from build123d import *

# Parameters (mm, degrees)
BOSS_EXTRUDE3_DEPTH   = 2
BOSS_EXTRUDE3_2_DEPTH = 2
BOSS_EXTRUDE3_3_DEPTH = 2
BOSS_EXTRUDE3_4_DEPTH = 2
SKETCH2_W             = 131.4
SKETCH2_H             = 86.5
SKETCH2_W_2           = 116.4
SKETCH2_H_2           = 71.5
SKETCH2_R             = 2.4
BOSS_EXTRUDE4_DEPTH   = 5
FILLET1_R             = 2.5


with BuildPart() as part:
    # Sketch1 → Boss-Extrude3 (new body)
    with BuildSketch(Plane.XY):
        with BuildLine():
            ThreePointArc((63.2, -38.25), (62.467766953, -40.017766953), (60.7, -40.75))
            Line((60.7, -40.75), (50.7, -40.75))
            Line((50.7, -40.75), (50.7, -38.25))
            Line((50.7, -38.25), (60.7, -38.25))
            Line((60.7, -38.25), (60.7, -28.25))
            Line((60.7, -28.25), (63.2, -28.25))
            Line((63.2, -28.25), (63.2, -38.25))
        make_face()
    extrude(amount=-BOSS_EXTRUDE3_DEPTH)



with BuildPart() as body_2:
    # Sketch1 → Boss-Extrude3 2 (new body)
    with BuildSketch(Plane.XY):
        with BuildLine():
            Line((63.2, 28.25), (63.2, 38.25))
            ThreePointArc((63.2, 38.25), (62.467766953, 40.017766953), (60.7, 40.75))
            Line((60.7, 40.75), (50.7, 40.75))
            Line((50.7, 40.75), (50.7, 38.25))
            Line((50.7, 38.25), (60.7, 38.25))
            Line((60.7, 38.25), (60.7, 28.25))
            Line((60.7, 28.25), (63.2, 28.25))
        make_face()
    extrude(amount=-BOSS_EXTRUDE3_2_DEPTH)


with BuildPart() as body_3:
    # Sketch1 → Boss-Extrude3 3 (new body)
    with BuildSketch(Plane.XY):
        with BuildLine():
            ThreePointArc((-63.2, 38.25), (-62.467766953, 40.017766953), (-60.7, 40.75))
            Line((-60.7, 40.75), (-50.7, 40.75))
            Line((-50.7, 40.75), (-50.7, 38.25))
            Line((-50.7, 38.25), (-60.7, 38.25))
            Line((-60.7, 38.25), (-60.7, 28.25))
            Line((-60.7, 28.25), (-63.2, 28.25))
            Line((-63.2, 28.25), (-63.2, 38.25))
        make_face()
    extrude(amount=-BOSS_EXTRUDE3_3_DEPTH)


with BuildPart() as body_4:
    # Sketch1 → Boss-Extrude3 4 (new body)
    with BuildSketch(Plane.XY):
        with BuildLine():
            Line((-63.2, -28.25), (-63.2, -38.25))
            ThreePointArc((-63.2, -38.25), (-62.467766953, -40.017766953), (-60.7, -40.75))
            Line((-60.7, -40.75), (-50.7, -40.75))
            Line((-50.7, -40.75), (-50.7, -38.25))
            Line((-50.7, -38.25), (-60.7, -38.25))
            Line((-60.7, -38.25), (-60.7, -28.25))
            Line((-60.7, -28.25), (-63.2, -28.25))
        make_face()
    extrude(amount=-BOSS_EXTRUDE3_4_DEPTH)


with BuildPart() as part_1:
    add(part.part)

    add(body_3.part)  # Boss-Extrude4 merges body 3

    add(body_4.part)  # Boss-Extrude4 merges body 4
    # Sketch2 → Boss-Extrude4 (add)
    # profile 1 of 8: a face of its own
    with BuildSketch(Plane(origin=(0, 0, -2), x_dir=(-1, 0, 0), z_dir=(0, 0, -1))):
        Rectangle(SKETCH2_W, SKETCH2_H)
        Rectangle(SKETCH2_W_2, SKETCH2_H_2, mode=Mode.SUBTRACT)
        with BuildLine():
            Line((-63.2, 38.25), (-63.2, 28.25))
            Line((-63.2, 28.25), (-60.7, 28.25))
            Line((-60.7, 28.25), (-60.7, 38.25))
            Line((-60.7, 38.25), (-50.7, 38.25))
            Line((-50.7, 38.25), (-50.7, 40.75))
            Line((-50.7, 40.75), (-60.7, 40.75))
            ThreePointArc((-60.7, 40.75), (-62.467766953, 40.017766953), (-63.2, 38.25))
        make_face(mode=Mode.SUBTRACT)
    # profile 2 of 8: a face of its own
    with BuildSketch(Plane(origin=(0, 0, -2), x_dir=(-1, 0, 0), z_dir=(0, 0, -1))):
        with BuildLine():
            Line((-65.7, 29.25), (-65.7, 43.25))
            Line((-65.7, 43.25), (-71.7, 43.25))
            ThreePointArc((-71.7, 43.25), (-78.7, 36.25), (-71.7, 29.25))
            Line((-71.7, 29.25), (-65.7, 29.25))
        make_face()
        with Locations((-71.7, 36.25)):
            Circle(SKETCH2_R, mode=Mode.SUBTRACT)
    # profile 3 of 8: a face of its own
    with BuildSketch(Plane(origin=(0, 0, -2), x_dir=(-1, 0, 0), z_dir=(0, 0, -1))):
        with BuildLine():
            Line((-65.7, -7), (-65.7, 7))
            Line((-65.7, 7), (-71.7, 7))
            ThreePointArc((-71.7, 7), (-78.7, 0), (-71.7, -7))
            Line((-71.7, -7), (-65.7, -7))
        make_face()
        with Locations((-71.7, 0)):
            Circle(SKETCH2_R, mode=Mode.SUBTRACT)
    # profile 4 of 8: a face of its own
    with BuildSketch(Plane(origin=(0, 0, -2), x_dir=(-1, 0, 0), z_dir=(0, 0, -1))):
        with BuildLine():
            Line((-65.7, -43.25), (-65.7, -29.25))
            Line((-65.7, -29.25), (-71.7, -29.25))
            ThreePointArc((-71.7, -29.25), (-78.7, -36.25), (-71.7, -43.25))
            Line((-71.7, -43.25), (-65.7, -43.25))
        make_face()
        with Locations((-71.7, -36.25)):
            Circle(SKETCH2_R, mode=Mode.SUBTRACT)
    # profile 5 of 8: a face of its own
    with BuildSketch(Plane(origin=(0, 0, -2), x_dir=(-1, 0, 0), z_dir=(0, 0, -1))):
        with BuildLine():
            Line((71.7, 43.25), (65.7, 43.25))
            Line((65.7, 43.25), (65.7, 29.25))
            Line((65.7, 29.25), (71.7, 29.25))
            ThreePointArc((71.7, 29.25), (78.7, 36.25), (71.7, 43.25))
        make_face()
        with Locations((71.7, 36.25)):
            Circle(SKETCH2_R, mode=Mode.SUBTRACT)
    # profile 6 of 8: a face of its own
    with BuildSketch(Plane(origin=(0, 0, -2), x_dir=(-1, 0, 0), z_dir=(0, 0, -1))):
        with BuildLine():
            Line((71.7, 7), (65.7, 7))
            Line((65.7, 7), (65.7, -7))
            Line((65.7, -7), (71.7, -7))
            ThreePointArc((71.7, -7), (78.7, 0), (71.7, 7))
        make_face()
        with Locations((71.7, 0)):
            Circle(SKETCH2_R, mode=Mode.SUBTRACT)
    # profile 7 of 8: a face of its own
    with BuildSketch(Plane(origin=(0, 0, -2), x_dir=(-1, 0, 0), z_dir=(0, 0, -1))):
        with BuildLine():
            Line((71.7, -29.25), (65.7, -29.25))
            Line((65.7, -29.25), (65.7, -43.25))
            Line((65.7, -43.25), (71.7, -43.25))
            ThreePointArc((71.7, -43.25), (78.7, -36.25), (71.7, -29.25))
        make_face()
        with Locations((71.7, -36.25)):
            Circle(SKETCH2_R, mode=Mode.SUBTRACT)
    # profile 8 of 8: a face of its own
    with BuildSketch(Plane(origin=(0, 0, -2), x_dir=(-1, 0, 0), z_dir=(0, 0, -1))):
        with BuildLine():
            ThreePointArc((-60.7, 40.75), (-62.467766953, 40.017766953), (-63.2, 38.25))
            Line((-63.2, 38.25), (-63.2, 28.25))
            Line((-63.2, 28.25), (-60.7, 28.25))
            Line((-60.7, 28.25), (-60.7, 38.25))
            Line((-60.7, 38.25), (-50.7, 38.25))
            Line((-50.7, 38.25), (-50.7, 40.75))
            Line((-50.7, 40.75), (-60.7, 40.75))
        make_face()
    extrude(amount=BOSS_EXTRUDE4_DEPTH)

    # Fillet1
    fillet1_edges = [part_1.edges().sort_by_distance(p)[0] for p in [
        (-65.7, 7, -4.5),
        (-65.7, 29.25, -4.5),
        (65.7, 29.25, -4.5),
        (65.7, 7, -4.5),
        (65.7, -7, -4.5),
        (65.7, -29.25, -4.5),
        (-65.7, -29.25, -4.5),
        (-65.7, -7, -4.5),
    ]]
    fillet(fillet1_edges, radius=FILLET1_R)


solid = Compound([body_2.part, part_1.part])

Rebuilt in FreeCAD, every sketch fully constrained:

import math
import FreeCAD as App
import Part
import Sketcher
from FreeCAD import Vector


def edges_at(feature, points):
    """Names of the edges that pass closest to the given points."""
    edges = feature.Shape.Edges
    near = lambda p: min(range(len(edges)), key=lambda i: edges[i].distToShape(Part.Vertex(*p))[0])
    return sorted({f"Edge{near(p) + 1}" for p in points})

doc = App.newDocument("Part")
body = doc.addObject("PartDesign::Body", "Body")

# Sketch on XY plane
sketch1 = body.newObject("Sketcher::SketchObject", "Sketch")
sketch1.AttachmentSupport = (doc.getObject("XY_Plane"), [""])
sketch1.MapMode = "FlatFace"
sketch1.addGeometry(Part.ArcOfCircle(Part.Circle(Vector(60.7, -38.2, 0), Vector(0, 0, 1), 2.5), math.radians(-90), math.radians(0)), False)
sketch1.addGeometry(Part.LineSegment(Vector(63.2, -38.2, 0), Vector(63.2, -28.2, 0)), False)
sketch1.addGeometry(Part.LineSegment(Vector(63.2, -28.2, 0), Vector(60.7, -28.2, 0)), False)
sketch1.addGeometry(Part.LineSegment(Vector(60.7, -28.2, 0), Vector(60.7, -38.2, 0)), False)
sketch1.addGeometry(Part.LineSegment(Vector(60.7, -38.2, 0), Vector(50.7, -38.2, 0)), False)
sketch1.addGeometry(Part.LineSegment(Vector(50.7, -38.2, 0), Vector(50.7, -40.8, 0)), False)
sketch1.addGeometry(Part.LineSegment(Vector(50.7, -40.8, 0), Vector(60.7, -40.8, 0)), False)
sketch1.addConstraint(Sketcher.Constraint("Tangent", 0, 2, 1, 1))
sketch1.addConstraint(Sketcher.Constraint("Coincident", 1, 2, 2, 1))
sketch1.addConstraint(Sketcher.Constraint("Coincident", 2, 2, 3, 1))
sketch1.addConstraint(Sketcher.Constraint("Coincident", 3, 2, 4, 1))
sketch1.addConstraint(Sketcher.Constraint("Coincident", 4, 2, 5, 1))
sketch1.addConstraint(Sketcher.Constraint("Coincident", 5, 2, 6, 1))
sketch1.addConstraint(Sketcher.Constraint("Tangent", 6, 2, 0, 1))
sketch1.addConstraint(Sketcher.Constraint("Vertical", 1))
sketch1.addConstraint(Sketcher.Constraint("Horizontal", 2))
sketch1.addConstraint(Sketcher.Constraint("Vertical", 3))
sketch1.addConstraint(Sketcher.Constraint("Horizontal", 4))
sketch1.addConstraint(Sketcher.Constraint("Vertical", 5))
sketch1.addConstraint(Sketcher.Constraint("Horizontal", 6))
sketch1.addConstraint(Sketcher.Constraint("Coincident", 3, 2, 0, 3))
sketch1.addConstraint(Sketcher.Constraint("Equal", 6, 1))
sketch1.addConstraint(Sketcher.Constraint("Radius", 0, 2.5))
sketch1.addConstraint(Sketcher.Constraint("DistanceX", 4, 2, 4, 1, 10.0))
sketch1.addConstraint(Sketcher.Constraint("DistanceX", -1, 1, 0, 3, 60.7))
sketch1.addConstraint(Sketcher.Constraint("DistanceY", 0, 3, -1, 1, 38.25))
pad1 = body.newObject("PartDesign::Pad", "Pad")
pad1.Profile = sketch1
pad1.Length = 2
pad1.Reversed = True
body2 = doc.addObject("PartDesign::Body", "Body001")

# Sketch on XY plane
sketch2 = body2.newObject("Sketcher::SketchObject", "Sketch001")
sketch2.AttachmentSupport = (doc.getObject("XY_Plane001"), [""])
sketch2.MapMode = "FlatFace"
sketch2.addGeometry(Part.LineSegment(Vector(63.2, 28.2, 0), Vector(63.2, 38.2, 0)), False)
sketch2.addGeometry(Part.ArcOfCircle(Part.Circle(Vector(60.7, 38.2, 0), Vector(0, 0, 1), 2.5), math.radians(0), math.radians(90)), False)
sketch2.addGeometry(Part.LineSegment(Vector(60.7, 40.8, 0), Vector(50.7, 40.8, 0)), False)
sketch2.addGeometry(Part.LineSegment(Vector(50.7, 40.8, 0), Vector(50.7, 38.2, 0)), False)
sketch2.addGeometry(Part.LineSegment(Vector(50.7, 38.2, 0), Vector(60.7, 38.2, 0)), False)
sketch2.addGeometry(Part.LineSegment(Vector(60.7, 38.2, 0), Vector(60.7, 28.2, 0)), False)
sketch2.addGeometry(Part.LineSegment(Vector(60.7, 28.2, 0), Vector(63.2, 28.2, 0)), False)
sketch2.addConstraint(Sketcher.Constraint("Tangent", 0, 2, 1, 1))
sketch2.addConstraint(Sketcher.Constraint("Tangent", 1, 2, 2, 1))
sketch2.addConstraint(Sketcher.Constraint("Coincident", 2, 2, 3, 1))
sketch2.addConstraint(Sketcher.Constraint("Coincident", 3, 2, 4, 1))
sketch2.addConstraint(Sketcher.Constraint("Coincident", 4, 2, 5, 1))
sketch2.addConstraint(Sketcher.Constraint("Coincident", 5, 2, 6, 1))
sketch2.addConstraint(Sketcher.Constraint("Coincident", 6, 2, 0, 1))
sketch2.addConstraint(Sketcher.Constraint("Vertical", 0))
sketch2.addConstraint(Sketcher.Constraint("Horizontal", 2))
sketch2.addConstraint(Sketcher.Constraint("Vertical", 3))
sketch2.addConstraint(Sketcher.Constraint("Horizontal", 4))
sketch2.addConstraint(Sketcher.Constraint("Vertical", 5))
sketch2.addConstraint(Sketcher.Constraint("Horizontal", 6))
sketch2.addConstraint(Sketcher.Constraint("Coincident", 4, 2, 1, 3))
sketch2.addConstraint(Sketcher.Constraint("Equal", 4, 0))
sketch2.addConstraint(Sketcher.Constraint("Radius", 1, 2.5))
sketch2.addConstraint(Sketcher.Constraint("DistanceX", 2, 2, 2, 1, 10.0))
sketch2.addConstraint(Sketcher.Constraint("DistanceX", -1, 1, 1, 3, 60.7))
sketch2.addConstraint(Sketcher.Constraint("DistanceY", -1, 1, 1, 3, 38.25))
pad2 = body2.newObject("PartDesign::Pad", "Pad001")
pad2.Profile = sketch2
pad2.Length = 2
pad2.Reversed = True
body3 = doc.addObject("PartDesign::Body", "Body002")

# Sketch on XY plane
sketch3 = body3.newObject("Sketcher::SketchObject", "Sketch002")
sketch3.AttachmentSupport = (doc.getObject("XY_Plane002"), [""])
sketch3.MapMode = "FlatFace"
sketch3.addGeometry(Part.ArcOfCircle(Part.Circle(Vector(-60.7, 38.2, 0), Vector(0, 0, 1), 2.5), math.radians(90), math.radians(180)), False)
sketch3.addGeometry(Part.LineSegment(Vector(-63.2, 38.2, 0), Vector(-63.2, 28.2, 0)), False)
sketch3.addGeometry(Part.LineSegment(Vector(-63.2, 28.2, 0), Vector(-60.7, 28.2, 0)), False)
sketch3.addGeometry(Part.LineSegment(Vector(-60.7, 28.2, 0), Vector(-60.7, 38.2, 0)), False)
sketch3.addGeometry(Part.LineSegment(Vector(-60.7, 38.2, 0), Vector(-50.7, 38.2, 0)), False)
sketch3.addGeometry(Part.LineSegment(Vector(-50.7, 38.2, 0), Vector(-50.7, 40.8, 0)), False)
sketch3.addGeometry(Part.LineSegment(Vector(-50.7, 40.8, 0), Vector(-60.7, 40.8, 0)), False)
sketch3.addConstraint(Sketcher.Constraint("Tangent", 0, 2, 1, 1))
sketch3.addConstraint(Sketcher.Constraint("Coincident", 1, 2, 2, 1))
sketch3.addConstraint(Sketcher.Constraint("Coincident", 2, 2, 3, 1))
sketch3.addConstraint(Sketcher.Constraint("Coincident", 3, 2, 4, 1))
sketch3.addConstraint(Sketcher.Constraint("Coincident", 4, 2, 5, 1))
sketch3.addConstraint(Sketcher.Constraint("Coincident", 5, 2, 6, 1))
sketch3.addConstraint(Sketcher.Constraint("Tangent", 6, 2, 0, 1))
sketch3.addConstraint(Sketcher.Constraint("Vertical", 1))
sketch3.addConstraint(Sketcher.Constraint("Horizontal", 2))
sketch3.addConstraint(Sketcher.Constraint("Vertical", 3))
sketch3.addConstraint(Sketcher.Constraint("Horizontal", 4))
sketch3.addConstraint(Sketcher.Constraint("Vertical", 5))
sketch3.addConstraint(Sketcher.Constraint("Horizontal", 6))
sketch3.addConstraint(Sketcher.Constraint("Coincident", 3, 2, 0, 3))
sketch3.addConstraint(Sketcher.Constraint("Equal", 6, 1))
sketch3.addConstraint(Sketcher.Constraint("Radius", 0, 2.5))
sketch3.addConstraint(Sketcher.Constraint("DistanceX", 4, 1, 4, 2, 10.0))
sketch3.addConstraint(Sketcher.Constraint("DistanceX", 0, 3, -1, 1, 60.7))
sketch3.addConstraint(Sketcher.Constraint("DistanceY", -1, 1, 0, 3, 38.25))
pad3 = body3.newObject("PartDesign::Pad", "Pad002")
pad3.Profile = sketch3
pad3.Length = 2
pad3.Reversed = True
body4 = doc.addObject("PartDesign::Body", "Body003")

# Sketch on XY plane
sketch4 = body4.newObject("Sketcher::SketchObject", "Sketch003")
sketch4.AttachmentSupport = (doc.getObject("XY_Plane003"), [""])
sketch4.MapMode = "FlatFace"
sketch4.addGeometry(Part.LineSegment(Vector(-63.2, -28.2, 0), Vector(-63.2, -38.2, 0)), False)
sketch4.addGeometry(Part.ArcOfCircle(Part.Circle(Vector(-60.7, -38.2, 0), Vector(0, 0, 1), 2.5), math.radians(180), math.radians(270)), False)
sketch4.addGeometry(Part.LineSegment(Vector(-60.7, -40.8, 0), Vector(-50.7, -40.8, 0)), False)
sketch4.addGeometry(Part.LineSegment(Vector(-50.7, -40.8, 0), Vector(-50.7, -38.2, 0)), False)
sketch4.addGeometry(Part.LineSegment(Vector(-50.7, -38.2, 0), Vector(-60.7, -38.2, 0)), False)
sketch4.addGeometry(Part.LineSegment(Vector(-60.7, -38.2, 0), Vector(-60.7, -28.2, 0)), False)
sketch4.addGeometry(Part.LineSegment(Vector(-60.7, -28.2, 0), Vector(-63.2, -28.2, 0)), False)
sketch4.addConstraint(Sketcher.Constraint("Tangent", 0, 2, 1, 1))
sketch4.addConstraint(Sketcher.Constraint("Tangent", 1, 2, 2, 1))
sketch4.addConstraint(Sketcher.Constraint("Coincident", 2, 2, 3, 1))
sketch4.addConstraint(Sketcher.Constraint("Coincident", 3, 2, 4, 1))
sketch4.addConstraint(Sketcher.Constraint("Coincident", 4, 2, 5, 1))
sketch4.addConstraint(Sketcher.Constraint("Coincident", 5, 2, 6, 1))
sketch4.addConstraint(Sketcher.Constraint("Coincident", 6, 2, 0, 1))
sketch4.addConstraint(Sketcher.Constraint("Vertical", 0))
sketch4.addConstraint(Sketcher.Constraint("Horizontal", 2))
sketch4.addConstraint(Sketcher.Constraint("Vertical", 3))
sketch4.addConstraint(Sketcher.Constraint("Horizontal", 4))
sketch4.addConstraint(Sketcher.Constraint("Vertical", 5))
sketch4.addConstraint(Sketcher.Constraint("Horizontal", 6))
sketch4.addConstraint(Sketcher.Constraint("Coincident", 4, 2, 1, 3))
sketch4.addConstraint(Sketcher.Constraint("Equal", 4, 0))
sketch4.addConstraint(Sketcher.Constraint("Radius", 1, 2.5))
sketch4.addConstraint(Sketcher.Constraint("DistanceX", 2, 1, 2, 2, 10.0))
sketch4.addConstraint(Sketcher.Constraint("DistanceX", 1, 3, -1, 1, 60.7))
sketch4.addConstraint(Sketcher.Constraint("DistanceY", 1, 3, -1, 1, 38.25))
pad4 = body4.newObject("PartDesign::Pad", "Pad003")
pad4.Profile = sketch4
pad4.Length = 2
pad4.Reversed = True
body.AllowCompound = True
doc.recompute()

boolean = body.newObject("PartDesign::Boolean", "Boolean")
boolean.Type = "Fuse"
boolean.addObjects([body3])
doc.recompute()

boolean2 = body.newObject("PartDesign::Boolean", "Boolean001")
boolean2.Type = "Fuse"
boolean2.addObjects([body4])

# Sketch on XY plane
sketch5 = body.newObject("Sketcher::SketchObject", "Sketch004")
sketch5.AttachmentSupport = (doc.getObject("XY_Plane"), [""])
sketch5.MapMode = "FlatFace"
sketch5.AttachmentOffset = App.Placement(Vector(0, 0, -2), App.Rotation())
sketch5.addGeometry(Part.LineSegment(Vector(65.7, -7, 0), Vector(65.7, -29.2, 0)), False)
sketch5.addGeometry(Part.LineSegment(Vector(65.7, -29.2, 0), Vector(71.7, -29.2, 0)), False)
sketch5.addGeometry(Part.ArcOfCircle(Part.Circle(Vector(71.7, -36.2, 0), Vector(0, 0, 1), 7), math.radians(-90), math.radians(90)), False)
sketch5.addGeometry(Part.LineSegment(Vector(71.7, -43.2, 0), Vector(-71.7, -43.2, 0)), False)
sketch5.addGeometry(Part.ArcOfCircle(Part.Circle(Vector(-71.7, -36.2, 0), Vector(0, 0, 1), 7), math.radians(90), math.radians(270)), False)
sketch5.addGeometry(Part.LineSegment(Vector(-71.7, -29.2, 0), Vector(-65.7, -29.2, 0)), False)
sketch5.addGeometry(Part.LineSegment(Vector(-65.7, -29.2, 0), Vector(-65.7, -7, 0)), False)
sketch5.addGeometry(Part.LineSegment(Vector(-65.7, -7, 0), Vector(-71.7, -7, 0)), False)
sketch5.addGeometry(Part.ArcOfCircle(Part.Circle(Vector(-71.7, 0, 0), Vector(0, 0, 1), 7), math.radians(90), math.radians(270)), False)
sketch5.addGeometry(Part.LineSegment(Vector(-71.7, 7, 0), Vector(-65.7, 7, 0)), False)
sketch5.addGeometry(Part.LineSegment(Vector(-65.7, 7, 0), Vector(-65.7, 29.2, 0)), False)
sketch5.addGeometry(Part.LineSegment(Vector(-65.7, 29.2, 0), Vector(-71.7, 29.2, 0)), False)
sketch5.addGeometry(Part.ArcOfCircle(Part.Circle(Vector(-71.7, 36.2, 0), Vector(0, 0, 1), 7), math.radians(90), math.radians(270)), False)
sketch5.addGeometry(Part.LineSegment(Vector(-71.7, 43.2, 0), Vector(71.7, 43.2, 0)), False)
sketch5.addGeometry(Part.ArcOfCircle(Part.Circle(Vector(71.7, 36.2, 0), Vector(0, 0, 1), 7), math.radians(-90), math.radians(90)), False)
sketch5.addGeometry(Part.LineSegment(Vector(71.7, 29.2, 0), Vector(65.7, 29.2, 0)), False)
sketch5.addGeometry(Part.LineSegment(Vector(65.7, 29.2, 0), Vector(65.7, 7, 0)), False)
sketch5.addGeometry(Part.LineSegment(Vector(65.7, 7, 0), Vector(71.7, 7, 0)), False)
sketch5.addGeometry(Part.ArcOfCircle(Part.Circle(Vector(71.7, 0, 0), Vector(0, 0, 1), 7), math.radians(-90), math.radians(90)), False)
sketch5.addGeometry(Part.LineSegment(Vector(71.7, -7, 0), Vector(65.7, -7, 0)), False)
sketch5.addGeometry(Part.LineSegment(Vector(-58.2, -35.8, 0), Vector(58.2, -35.8, 0)), False)
sketch5.addGeometry(Part.LineSegment(Vector(58.2, -35.8, 0), Vector(58.2, 35.8, 0)), False)
sketch5.addGeometry(Part.LineSegment(Vector(58.2, 35.8, 0), Vector(-58.2, 35.8, 0)), False)
sketch5.addGeometry(Part.LineSegment(Vector(-58.2, 35.8, 0), Vector(-58.2, -35.8, 0)), False)
sketch5.addGeometry(Part.Circle(Vector(71.7, -36.2, 0), Vector(0, 0, 1), 2.4), False)
sketch5.addGeometry(Part.Circle(Vector(71.7, 0, 0), Vector(0, 0, 1), 2.4), False)
sketch5.addGeometry(Part.Circle(Vector(71.7, 36.2, 0), Vector(0, 0, 1), 2.4), False)
sketch5.addGeometry(Part.Circle(Vector(-71.7, -36.2, 0), Vector(0, 0, 1), 2.4), False)
sketch5.addGeometry(Part.Circle(Vector(-71.7, 0, 0), Vector(0, 0, 1), 2.4), False)
sketch5.addGeometry(Part.Circle(Vector(-71.7, 36.2, 0), Vector(0, 0, 1), 2.4), False)
sketch5.addConstraint(Sketcher.Constraint("Coincident", 0, 2, 1, 1))
sketch5.addConstraint(Sketcher.Constraint("Tangent", 1, 2, 2, 2))
sketch5.addConstraint(Sketcher.Constraint("Tangent", 2, 1, 3, 1))
sketch5.addConstraint(Sketcher.Constraint("Tangent", 3, 2, 4, 2))
sketch5.addConstraint(Sketcher.Constraint("Tangent", 4, 1, 5, 1))
sketch5.addConstraint(Sketcher.Constraint("Coincident", 5, 2, 6, 1))
sketch5.addConstraint(Sketcher.Constraint("Coincident", 6, 2, 7, 1))
sketch5.addConstraint(Sketcher.Constraint("Tangent", 7, 2, 8, 2))
sketch5.addConstraint(Sketcher.Constraint("Tangent", 8, 1, 9, 1))
sketch5.addConstraint(Sketcher.Constraint("Coincident", 9, 2, 10, 1))
sketch5.addConstraint(Sketcher.Constraint("Coincident", 10, 2, 11, 1))
sketch5.addConstraint(Sketcher.Constraint("Tangent", 11, 2, 12, 2))
sketch5.addConstraint(Sketcher.Constraint("Tangent", 12, 1, 13, 1))
sketch5.addConstraint(Sketcher.Constraint("Tangent", 13, 2, 14, 2))
sketch5.addConstraint(Sketcher.Constraint("Tangent", 14, 1, 15, 1))
sketch5.addConstraint(Sketcher.Constraint("Coincident", 15, 2, 16, 1))
sketch5.addConstraint(Sketcher.Constraint("Coincident", 16, 2, 17, 1))
sketch5.addConstraint(Sketcher.Constraint("Tangent", 17, 2, 18, 2))
sketch5.addConstraint(Sketcher.Constraint("Tangent", 18, 1, 19, 1))
sketch5.addConstraint(Sketcher.Constraint("Coincident", 19, 2, 0, 1))
sketch5.addConstraint(Sketcher.Constraint("Coincident", 20, 2, 21, 1))
sketch5.addConstraint(Sketcher.Constraint("Coincident", 21, 2, 22, 1))
sketch5.addConstraint(Sketcher.Constraint("Coincident", 22, 2, 23, 1))
sketch5.addConstraint(Sketcher.Constraint("Coincident", 23, 2, 20, 1))
sketch5.addConstraint(Sketcher.Constraint("Vertical", 0))
sketch5.addConstraint(Sketcher.Constraint("Horizontal", 1))
sketch5.addConstraint(Sketcher.Constraint("Horizontal", 3))
sketch5.addConstraint(Sketcher.Constraint("Horizontal", 5))
sketch5.addConstraint(Sketcher.Constraint("Vertical", 6))
sketch5.addConstraint(Sketcher.Constraint("Horizontal", 7))
sketch5.addConstraint(Sketcher.Constraint("Horizontal", 9))
sketch5.addConstraint(Sketcher.Constraint("Vertical", 10))
sketch5.addConstraint(Sketcher.Constraint("Horizontal", 11))
sketch5.addConstraint(Sketcher.Constraint("Horizontal", 13))
sketch5.addConstraint(Sketcher.Constraint("Horizontal", 15))
sketch5.addConstraint(Sketcher.Constraint("Vertical", 16))
sketch5.addConstraint(Sketcher.Constraint("Horizontal", 17))
sketch5.addConstraint(Sketcher.Constraint("Horizontal", 19))
sketch5.addConstraint(Sketcher.Constraint("Horizontal", 20))
sketch5.addConstraint(Sketcher.Constraint("Vertical", 21))
sketch5.addConstraint(Sketcher.Constraint("Horizontal", 22))
sketch5.addConstraint(Sketcher.Constraint("Vertical", 23))
sketch5.addConstraint(Sketcher.Constraint("Coincident", 24, 3, 2, 3))
sketch5.addConstraint(Sketcher.Constraint("Coincident", 25, 3, 18, 3))
sketch5.addConstraint(Sketcher.Constraint("Coincident", 26, 3, 14, 3))
sketch5.addConstraint(Sketcher.Constraint("Coincident", 27, 3, 4, 3))
sketch5.addConstraint(Sketcher.Constraint("Coincident", 28, 3, 8, 3))
sketch5.addConstraint(Sketcher.Constraint("Coincident", 29, 3, 12, 3))
sketch5.addConstraint(Sketcher.Constraint("Equal", 2, 4))
sketch5.addConstraint(Sketcher.Constraint("Equal", 4, 8))
sketch5.addConstraint(Sketcher.Constraint("Equal", 8, 12))
sketch5.addConstraint(Sketcher.Constraint("Equal", 12, 14))
sketch5.addConstraint(Sketcher.Constraint("Equal", 14, 18))
sketch5.addConstraint(Sketcher.Constraint("Equal", 24, 25))
sketch5.addConstraint(Sketcher.Constraint("Equal", 25, 26))
sketch5.addConstraint(Sketcher.Constraint("Equal", 26, 27))
sketch5.addConstraint(Sketcher.Constraint("Equal", 27, 28))
sketch5.addConstraint(Sketcher.Constraint("Equal", 28, 29))
sketch5.addConstraint(Sketcher.Constraint("Symmetric", 2, 3, 12, 3, -1, 1))
sketch5.addConstraint(Sketcher.Constraint("Symmetric", 8, 3, 18, 3, -1, 1))
sketch5.addConstraint(Sketcher.Constraint("Symmetric", 20, 2, 22, 2, -1, 1))
sketch5.addConstraint(Sketcher.Constraint("Symmetric", 9, 2, 16, 2, -2))
sketch5.addConstraint(Sketcher.Constraint("Vertical", 4, 3, 8, 3))
sketch5.addConstraint(Sketcher.Constraint("Vertical", 8, 3, 12, 3))
sketch5.addConstraint(Sketcher.Constraint("Vertical", 2, 3, 14, 3))
sketch5.addConstraint(Sketcher.Constraint("Vertical", 6, 2, 9, 2))
sketch5.addConstraint(Sketcher.Constraint("Vertical", 0, 2, 15, 2))
sketch5.addConstraint(Sketcher.Constraint("Radius", 2, 7.0))
sketch5.addConstraint(Sketcher.Constraint("Diameter", 24, 4.8))
sketch5.addConstraint(Sketcher.Constraint("DistanceX", 1, 1, 1, 2, 6.0))
sketch5.addConstraint(Sketcher.Constraint("DistanceX", 3, 2, 3, 1, 143.4))
sketch5.addConstraint(Sketcher.Constraint("DistanceX", 20, 1, 20, 2, 116.4))
sketch5.addConstraint(Sketcher.Constraint("DistanceY", 21, 1, 21, 2, 71.5))
sketch5.addConstraint(Sketcher.Constraint("DistanceY", 0, 2, 0, 1, 22.25))
pad5 = body.newObject("PartDesign::Pad", "Pad004")
pad5.Profile = sketch5
pad5.Length = 5
pad5.Reversed = True
doc.recompute()

fillet = body.newObject("PartDesign::Fillet", "Fillet")
fillet.Base = (pad5, edges_at(pad5, [
    (-65.7, 7, -4.5),
    (-65.7, 29.25, -4.5),
    (65.7, 29.25, -4.5),
    (65.7, 7, -4.5),
    (65.7, -7, -4.5),
    (65.7, -29.25, -4.5),
    (-65.7, -29.25, -4.5),
    (-65.7, -7, -4.5),
]))
fillet.Radius = 2.5

doc.recompute()
